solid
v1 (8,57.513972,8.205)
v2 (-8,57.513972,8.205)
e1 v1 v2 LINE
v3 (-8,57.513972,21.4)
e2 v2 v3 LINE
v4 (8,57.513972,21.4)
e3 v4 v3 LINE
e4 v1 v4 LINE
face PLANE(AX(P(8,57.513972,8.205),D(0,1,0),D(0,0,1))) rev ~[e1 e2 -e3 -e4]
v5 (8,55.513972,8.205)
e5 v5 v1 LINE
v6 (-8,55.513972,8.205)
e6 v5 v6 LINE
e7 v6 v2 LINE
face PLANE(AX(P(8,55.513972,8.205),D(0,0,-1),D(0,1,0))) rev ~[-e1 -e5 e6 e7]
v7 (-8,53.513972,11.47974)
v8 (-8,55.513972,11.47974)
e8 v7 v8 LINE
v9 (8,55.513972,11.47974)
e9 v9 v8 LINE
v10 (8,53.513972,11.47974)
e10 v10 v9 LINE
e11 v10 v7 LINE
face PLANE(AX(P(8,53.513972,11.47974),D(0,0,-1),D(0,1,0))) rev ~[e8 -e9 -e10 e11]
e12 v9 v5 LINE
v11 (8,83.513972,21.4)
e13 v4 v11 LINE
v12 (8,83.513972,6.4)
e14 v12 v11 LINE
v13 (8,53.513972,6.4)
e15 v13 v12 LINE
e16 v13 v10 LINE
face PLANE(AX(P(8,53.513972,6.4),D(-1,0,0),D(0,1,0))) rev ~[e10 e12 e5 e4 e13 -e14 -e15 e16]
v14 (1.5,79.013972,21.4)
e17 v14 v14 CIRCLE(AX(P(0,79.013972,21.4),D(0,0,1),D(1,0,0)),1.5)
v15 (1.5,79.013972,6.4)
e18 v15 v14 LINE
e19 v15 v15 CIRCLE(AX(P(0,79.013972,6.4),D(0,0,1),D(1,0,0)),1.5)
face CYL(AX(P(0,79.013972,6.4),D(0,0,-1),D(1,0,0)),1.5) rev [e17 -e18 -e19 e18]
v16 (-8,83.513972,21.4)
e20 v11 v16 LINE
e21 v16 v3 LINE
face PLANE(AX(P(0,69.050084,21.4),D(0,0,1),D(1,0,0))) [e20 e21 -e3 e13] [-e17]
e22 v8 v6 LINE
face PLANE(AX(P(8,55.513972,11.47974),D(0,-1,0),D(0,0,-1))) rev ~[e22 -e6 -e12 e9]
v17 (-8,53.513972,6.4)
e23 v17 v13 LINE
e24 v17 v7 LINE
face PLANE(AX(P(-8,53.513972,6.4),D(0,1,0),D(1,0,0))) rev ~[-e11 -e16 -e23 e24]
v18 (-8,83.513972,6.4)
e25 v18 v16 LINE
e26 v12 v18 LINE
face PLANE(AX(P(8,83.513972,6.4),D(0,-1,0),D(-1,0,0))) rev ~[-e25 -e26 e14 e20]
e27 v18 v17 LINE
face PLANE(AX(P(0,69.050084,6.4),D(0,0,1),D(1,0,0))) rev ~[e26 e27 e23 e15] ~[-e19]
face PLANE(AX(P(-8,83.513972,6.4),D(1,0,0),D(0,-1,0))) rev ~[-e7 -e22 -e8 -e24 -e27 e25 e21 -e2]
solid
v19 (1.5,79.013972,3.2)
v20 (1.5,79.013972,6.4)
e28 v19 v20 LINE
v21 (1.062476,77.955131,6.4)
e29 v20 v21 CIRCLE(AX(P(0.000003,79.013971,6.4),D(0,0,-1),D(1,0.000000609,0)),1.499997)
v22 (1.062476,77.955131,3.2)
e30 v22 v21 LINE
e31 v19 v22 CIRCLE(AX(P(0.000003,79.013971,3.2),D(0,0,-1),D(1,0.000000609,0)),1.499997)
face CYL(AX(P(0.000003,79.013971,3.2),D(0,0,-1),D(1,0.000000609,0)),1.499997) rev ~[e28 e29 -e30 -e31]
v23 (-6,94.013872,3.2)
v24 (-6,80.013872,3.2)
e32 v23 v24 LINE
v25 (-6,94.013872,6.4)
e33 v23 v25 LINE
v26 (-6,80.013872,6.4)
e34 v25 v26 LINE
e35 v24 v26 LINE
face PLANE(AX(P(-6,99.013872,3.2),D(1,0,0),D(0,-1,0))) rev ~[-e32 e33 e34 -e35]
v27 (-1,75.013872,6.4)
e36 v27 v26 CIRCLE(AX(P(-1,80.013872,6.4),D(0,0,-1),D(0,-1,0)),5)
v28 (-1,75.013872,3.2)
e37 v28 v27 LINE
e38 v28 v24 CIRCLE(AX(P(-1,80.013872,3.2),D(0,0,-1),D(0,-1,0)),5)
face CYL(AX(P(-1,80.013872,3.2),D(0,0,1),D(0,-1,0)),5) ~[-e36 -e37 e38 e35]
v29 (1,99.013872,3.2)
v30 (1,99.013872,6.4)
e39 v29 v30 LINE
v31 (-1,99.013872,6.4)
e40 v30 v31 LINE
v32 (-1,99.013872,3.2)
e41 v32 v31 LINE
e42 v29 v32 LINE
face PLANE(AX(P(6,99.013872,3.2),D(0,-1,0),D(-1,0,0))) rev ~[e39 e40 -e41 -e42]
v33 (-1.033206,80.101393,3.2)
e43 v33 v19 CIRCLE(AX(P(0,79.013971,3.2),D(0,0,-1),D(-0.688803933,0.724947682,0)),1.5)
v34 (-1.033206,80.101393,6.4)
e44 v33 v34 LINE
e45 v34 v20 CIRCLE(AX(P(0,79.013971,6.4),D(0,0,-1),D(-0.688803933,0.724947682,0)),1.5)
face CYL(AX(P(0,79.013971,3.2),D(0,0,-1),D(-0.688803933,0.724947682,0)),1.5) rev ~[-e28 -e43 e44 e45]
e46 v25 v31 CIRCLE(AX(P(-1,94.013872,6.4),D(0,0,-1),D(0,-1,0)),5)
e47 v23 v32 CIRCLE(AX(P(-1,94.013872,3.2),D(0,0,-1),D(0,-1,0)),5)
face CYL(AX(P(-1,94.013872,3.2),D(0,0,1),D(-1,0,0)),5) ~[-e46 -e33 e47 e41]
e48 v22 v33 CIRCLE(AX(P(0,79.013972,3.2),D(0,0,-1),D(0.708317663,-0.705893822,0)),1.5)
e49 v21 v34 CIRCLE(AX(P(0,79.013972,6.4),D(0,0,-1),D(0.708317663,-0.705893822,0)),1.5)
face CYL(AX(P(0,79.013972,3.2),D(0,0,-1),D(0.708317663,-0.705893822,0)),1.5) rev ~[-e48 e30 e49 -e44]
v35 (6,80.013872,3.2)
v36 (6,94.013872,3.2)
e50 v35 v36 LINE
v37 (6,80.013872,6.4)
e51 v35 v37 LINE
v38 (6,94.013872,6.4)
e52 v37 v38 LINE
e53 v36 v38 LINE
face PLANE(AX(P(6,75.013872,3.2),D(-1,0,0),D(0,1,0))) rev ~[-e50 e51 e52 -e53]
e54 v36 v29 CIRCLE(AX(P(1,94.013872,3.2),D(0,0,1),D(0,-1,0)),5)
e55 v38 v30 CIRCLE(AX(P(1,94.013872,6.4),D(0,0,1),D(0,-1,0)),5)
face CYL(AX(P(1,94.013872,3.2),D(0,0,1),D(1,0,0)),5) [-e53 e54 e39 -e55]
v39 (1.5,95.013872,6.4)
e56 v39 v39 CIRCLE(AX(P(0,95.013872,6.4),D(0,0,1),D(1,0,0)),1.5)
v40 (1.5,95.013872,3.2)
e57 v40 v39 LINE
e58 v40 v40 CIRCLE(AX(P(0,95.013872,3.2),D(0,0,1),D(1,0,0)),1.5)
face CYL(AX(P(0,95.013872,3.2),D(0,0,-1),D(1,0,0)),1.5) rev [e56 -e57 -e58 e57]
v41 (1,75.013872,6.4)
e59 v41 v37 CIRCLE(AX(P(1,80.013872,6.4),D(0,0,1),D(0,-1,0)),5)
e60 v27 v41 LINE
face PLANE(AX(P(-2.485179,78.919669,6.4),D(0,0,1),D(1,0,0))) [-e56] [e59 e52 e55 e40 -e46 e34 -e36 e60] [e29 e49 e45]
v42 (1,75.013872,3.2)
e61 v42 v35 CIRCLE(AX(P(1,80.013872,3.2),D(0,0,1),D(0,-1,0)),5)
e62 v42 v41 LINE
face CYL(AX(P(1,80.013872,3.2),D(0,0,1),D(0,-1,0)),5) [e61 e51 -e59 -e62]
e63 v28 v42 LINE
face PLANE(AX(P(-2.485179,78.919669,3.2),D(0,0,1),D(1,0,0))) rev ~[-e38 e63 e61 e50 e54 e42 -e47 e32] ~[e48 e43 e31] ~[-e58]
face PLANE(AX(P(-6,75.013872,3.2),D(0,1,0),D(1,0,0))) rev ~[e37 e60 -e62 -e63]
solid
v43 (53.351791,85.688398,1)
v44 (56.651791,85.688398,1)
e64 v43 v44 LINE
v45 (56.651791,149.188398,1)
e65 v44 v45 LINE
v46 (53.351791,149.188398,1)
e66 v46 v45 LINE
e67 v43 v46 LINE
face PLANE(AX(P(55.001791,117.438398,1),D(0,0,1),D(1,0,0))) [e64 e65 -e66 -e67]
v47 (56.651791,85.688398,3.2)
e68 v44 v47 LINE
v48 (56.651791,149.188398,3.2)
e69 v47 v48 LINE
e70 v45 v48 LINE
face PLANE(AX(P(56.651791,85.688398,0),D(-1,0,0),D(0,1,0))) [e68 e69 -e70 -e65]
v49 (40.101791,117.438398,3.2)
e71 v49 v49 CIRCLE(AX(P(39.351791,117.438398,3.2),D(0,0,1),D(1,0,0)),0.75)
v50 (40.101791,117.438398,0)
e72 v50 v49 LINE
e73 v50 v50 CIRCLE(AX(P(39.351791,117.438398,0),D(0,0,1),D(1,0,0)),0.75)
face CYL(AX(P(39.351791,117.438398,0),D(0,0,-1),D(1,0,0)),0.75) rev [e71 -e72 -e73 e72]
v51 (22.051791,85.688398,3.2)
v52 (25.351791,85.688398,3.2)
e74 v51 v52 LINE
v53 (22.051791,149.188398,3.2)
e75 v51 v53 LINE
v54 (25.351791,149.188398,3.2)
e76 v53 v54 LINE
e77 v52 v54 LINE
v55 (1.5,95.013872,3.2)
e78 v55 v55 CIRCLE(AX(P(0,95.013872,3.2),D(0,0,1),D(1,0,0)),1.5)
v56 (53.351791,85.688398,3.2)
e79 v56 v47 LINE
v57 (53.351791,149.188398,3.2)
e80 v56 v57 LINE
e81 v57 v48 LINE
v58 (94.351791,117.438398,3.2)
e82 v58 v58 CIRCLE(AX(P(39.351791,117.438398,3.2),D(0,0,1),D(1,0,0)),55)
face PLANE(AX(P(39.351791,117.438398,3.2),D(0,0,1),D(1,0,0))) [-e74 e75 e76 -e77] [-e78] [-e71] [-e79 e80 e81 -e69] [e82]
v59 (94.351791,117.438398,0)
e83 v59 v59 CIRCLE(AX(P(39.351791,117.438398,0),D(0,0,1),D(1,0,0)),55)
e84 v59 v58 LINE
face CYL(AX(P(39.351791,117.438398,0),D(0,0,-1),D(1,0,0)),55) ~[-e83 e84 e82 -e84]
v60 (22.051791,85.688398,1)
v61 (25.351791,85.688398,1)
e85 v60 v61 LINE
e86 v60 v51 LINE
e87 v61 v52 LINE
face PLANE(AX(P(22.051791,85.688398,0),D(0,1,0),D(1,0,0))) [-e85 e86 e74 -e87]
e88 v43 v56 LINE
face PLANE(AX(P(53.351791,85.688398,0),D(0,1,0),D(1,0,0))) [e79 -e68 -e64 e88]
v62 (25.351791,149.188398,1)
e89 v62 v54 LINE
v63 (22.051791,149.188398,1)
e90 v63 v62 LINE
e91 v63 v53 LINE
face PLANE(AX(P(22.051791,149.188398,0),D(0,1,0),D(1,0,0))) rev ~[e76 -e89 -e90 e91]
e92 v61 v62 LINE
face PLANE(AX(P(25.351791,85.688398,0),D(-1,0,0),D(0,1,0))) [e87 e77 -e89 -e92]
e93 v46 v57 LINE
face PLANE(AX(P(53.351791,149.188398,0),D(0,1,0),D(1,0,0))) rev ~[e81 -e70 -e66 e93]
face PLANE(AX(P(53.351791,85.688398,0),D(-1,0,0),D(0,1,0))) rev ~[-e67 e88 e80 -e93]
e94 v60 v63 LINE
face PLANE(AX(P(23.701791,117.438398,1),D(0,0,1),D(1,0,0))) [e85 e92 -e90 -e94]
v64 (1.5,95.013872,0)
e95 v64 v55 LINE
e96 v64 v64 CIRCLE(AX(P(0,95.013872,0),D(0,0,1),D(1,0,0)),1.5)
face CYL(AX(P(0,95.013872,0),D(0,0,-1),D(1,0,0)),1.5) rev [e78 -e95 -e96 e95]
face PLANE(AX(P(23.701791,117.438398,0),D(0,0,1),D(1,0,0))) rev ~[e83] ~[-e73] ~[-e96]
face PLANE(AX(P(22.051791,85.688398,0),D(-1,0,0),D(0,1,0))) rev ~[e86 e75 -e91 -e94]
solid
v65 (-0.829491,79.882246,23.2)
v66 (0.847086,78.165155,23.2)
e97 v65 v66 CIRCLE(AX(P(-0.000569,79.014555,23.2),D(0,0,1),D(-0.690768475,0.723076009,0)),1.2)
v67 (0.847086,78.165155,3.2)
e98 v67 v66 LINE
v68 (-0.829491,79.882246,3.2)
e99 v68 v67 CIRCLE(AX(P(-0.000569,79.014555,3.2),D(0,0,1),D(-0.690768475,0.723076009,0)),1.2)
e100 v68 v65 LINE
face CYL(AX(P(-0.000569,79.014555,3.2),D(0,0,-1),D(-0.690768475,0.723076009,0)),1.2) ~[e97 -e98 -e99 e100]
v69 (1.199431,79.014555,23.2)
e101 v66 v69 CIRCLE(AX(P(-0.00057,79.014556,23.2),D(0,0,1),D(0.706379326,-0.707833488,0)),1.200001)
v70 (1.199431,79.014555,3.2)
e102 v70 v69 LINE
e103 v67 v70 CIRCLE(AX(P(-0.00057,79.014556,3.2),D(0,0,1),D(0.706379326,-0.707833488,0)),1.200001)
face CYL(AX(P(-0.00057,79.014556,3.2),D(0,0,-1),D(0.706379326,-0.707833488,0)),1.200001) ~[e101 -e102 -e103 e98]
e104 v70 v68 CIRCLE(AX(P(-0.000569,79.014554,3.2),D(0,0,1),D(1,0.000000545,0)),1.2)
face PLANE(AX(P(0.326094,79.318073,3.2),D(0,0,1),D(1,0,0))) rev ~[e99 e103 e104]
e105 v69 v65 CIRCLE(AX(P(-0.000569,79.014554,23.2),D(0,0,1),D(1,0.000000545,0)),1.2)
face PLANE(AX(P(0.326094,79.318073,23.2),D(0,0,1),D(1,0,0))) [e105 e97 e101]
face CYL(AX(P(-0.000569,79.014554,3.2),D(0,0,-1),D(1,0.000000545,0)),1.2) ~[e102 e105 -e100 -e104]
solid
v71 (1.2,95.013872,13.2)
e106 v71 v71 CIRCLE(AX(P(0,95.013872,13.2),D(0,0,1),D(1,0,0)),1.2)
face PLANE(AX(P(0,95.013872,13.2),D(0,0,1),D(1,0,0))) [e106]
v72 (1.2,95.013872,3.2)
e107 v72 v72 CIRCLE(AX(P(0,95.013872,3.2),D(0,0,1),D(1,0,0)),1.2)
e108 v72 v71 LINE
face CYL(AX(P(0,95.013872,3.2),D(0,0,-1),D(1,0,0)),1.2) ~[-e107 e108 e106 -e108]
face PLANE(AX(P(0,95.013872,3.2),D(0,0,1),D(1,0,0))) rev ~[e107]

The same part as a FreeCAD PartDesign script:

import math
import FreeCAD as App
import Part
import Sketcher
from FreeCAD import Vector


def edges_at(feature, points):
    """Names of the edges that pass closest to the given points."""
    edges = feature.Shape.Edges
    near = lambda p: min(range(len(edges)), key=lambda i: edges[i].distToShape(Part.Vertex(*p))[0])
    return sorted({f"Edge{near(p) + 1}" for p in points})


def add_polygon(sketch, points):
    """Adds a closed chain of lines whose ends are joined by coincident constraints."""
    first, n = sketch.GeometryCount, len(points)
    for a, b in zip(points, points[1:] + points[:1]):
        sketch.addGeometry(Part.LineSegment(App.Vector(*a, 0), App.Vector(*b, 0)), False)
    for i in range(n):
        sketch.addConstraint(Sketcher.Constraint("Coincident", first + i, 2, first + (i + 1) % n, 1))

doc = App.newDocument("Part")
body = doc.addObject("PartDesign::Body", "Body")

# Sketch on XY plane
sketch1 = body.newObject("Sketcher::SketchObject", "Sketch")
sketch1.AttachmentSupport = (doc.getObject("XY_Plane"), [""])
sketch1.MapMode = "FlatFace"
sketch1.addGeometry(Part.Circle(Vector(39.4, 117.4, 0), Vector(0, 0, 1), 55), False)  # 0
sketch1.addGeometry(Part.Circle(Vector(0, 95, 0), Vector(0, 0, 1), 1.5), False)  # 1
add_polygon(sketch1, [(25.4, 85.7), (22.1, 85.7), (22.1, 149.2), (25.4, 149.2)])  # lines 2-5
sketch1.addGeometry(Part.Circle(Vector(39.4, 117.4, 0), Vector(0, 0, 1), 0.8), False)  # 6
add_polygon(sketch1, [(56.7, 85.7), (53.4, 85.7), (53.4, 149.2), (56.7, 149.2)])  # lines 7-10
sketch1.addConstraint(Sketcher.Constraint("Horizontal", 2))
sketch1.addConstraint(Sketcher.Constraint("Vertical", 3))
sketch1.addConstraint(Sketcher.Constraint("Horizontal", 4))
sketch1.addConstraint(Sketcher.Constraint("Vertical", 5))
sketch1.addConstraint(Sketcher.Constraint("Horizontal", 7))
sketch1.addConstraint(Sketcher.Constraint("Vertical", 8))
sketch1.addConstraint(Sketcher.Constraint("Horizontal", 9))
sketch1.addConstraint(Sketcher.Constraint("Vertical", 10))
sketch1.addConstraint(Sketcher.Constraint("Coincident", 6, 3, 0, 3))
sketch1.addConstraint(Sketcher.Constraint("PointOnObject", 1, 3, -2))
sketch1.addConstraint(Sketcher.Constraint("Horizontal", 5, 2, 7, 2))
sketch1.addConstraint(Sketcher.Constraint("Horizontal", 4, 2, 8, 2))
sketch1.addConstraint(Sketcher.Constraint("Equal", 4, 7))
sketch1.addConstraint(Sketcher.Constraint("Diameter", 0, 110.0))
sketch1.addConstraint(Sketcher.Constraint("Diameter", 1, 3.0))
sketch1.addConstraint(Sketcher.Constraint("Diameter", 6, 1.5))
sketch1.addConstraint(Sketcher.Constraint("DistanceX", 2, 2, 2, 1, 3.3))
sketch1.addConstraint(Sketcher.Constraint("DistanceY", 3, 1, 3, 2, 63.5))
sketch1.addConstraint(Sketcher.Constraint("DistanceX", 4, 2, 0, 3, 14.0))
sketch1.addConstraint(Sketcher.Constraint("DistanceX", 5, 2, 7, 2, 28.0))
sketch1.addConstraint(Sketcher.Constraint("DistanceY", 2, 2, 0, 3, 31.75))
sketch1.addConstraint(Sketcher.Constraint("DistanceY", -1, 1, 0, 3, 117.438398))
sketch1.addConstraint(Sketcher.Constraint("DistanceX", -1, 1, 0, 3, 39.351791))
sketch1.addConstraint(Sketcher.Constraint("DistanceY", -1, 1, 1, 3, 95.013872))
pad1 = body.newObject("PartDesign::Pad", "Pad")
pad1.Profile = sketch1
pad1.Length = 3.2

# Sketch on XY plane
sketch2 = body.newObject("Sketcher::SketchObject", "Sketch001")
sketch2.AttachmentSupport = (doc.getObject("XY_Plane"), [""])
sketch2.MapMode = "FlatFace"
add_polygon(sketch2, [(22.1, 149.2), (22.1, 85.7), (25.4, 85.7), (25.4, 149.2)])  # lines 0-3
add_polygon(sketch2, [(53.4, 149.2), (53.4, 85.7), (56.7, 85.7), (56.7, 149.2)])  # lines 4-7
sketch2.addConstraint(Sketcher.Constraint("Vertical", 0))
sketch2.addConstraint(Sketcher.Constraint("Horizontal", 1))
sketch2.addConstraint(Sketcher.Constraint("Vertical", 2))
sketch2.addConstraint(Sketcher.Constraint("Horizontal", 3))
sketch2.addConstraint(Sketcher.Constraint("Vertical", 4))
sketch2.addConstraint(Sketcher.Constraint("Horizontal", 5))
sketch2.addConstraint(Sketcher.Constraint("Vertical", 6))
sketch2.addConstraint(Sketcher.Constraint("Horizontal", 7))
sketch2.addConstraint(Sketcher.Constraint("Horizontal", 1, 2, 4, 2))
sketch2.addConstraint(Sketcher.Constraint("Horizontal", 3, 2, 6, 2))
sketch2.addConstraint(Sketcher.Constraint("Equal", 3, 5))
sketch2.addConstraint(Sketcher.Constraint("DistanceX", 1, 1, 1, 2, 3.3))
sketch2.addConstraint(Sketcher.Constraint("DistanceY", 0, 2, 0, 1, 63.5))
sketch2.addConstraint(Sketcher.Constraint("DistanceX", 1, 2, 4, 2, 28.0))
sketch2.addConstraint(Sketcher.Constraint("DistanceY", -1, 1, 0, 2, 85.688398))
sketch2.addConstraint(Sketcher.Constraint("DistanceX", -1, 1, 0, 2, 22.051791))
pad2 = body.newObject("PartDesign::Pad", "Pad001")
pad2.Profile = sketch2
pad2.Length = 1
body2 = doc.addObject("PartDesign::Body", "Body001")

# Sketch on XY plane
sketch3 = body2.newObject("Sketcher::SketchObject", "Sketch002")
sketch3.AttachmentSupport = (doc.getObject("XY_Plane001"), [""])
sketch3.MapMode = "FlatFace"
sketch3.AttachmentOffset = App.Placement(Vector(0, 0, 3.2), App.Rotation())
sketch3.addGeometry(Part.Circle(Vector(0, 95, 0), Vector(0, 0, 1), 1.2), False)
sketch3.addConstraint(Sketcher.Constraint("PointOnObject", 0, 3, -2))
sketch3.addConstraint(Sketcher.Constraint("Diameter", 0, 2.4))
sketch3.addConstraint(Sketcher.Constraint("DistanceY", -1, 1, 0, 3, 95.013872))
pad3 = body2.newObject("PartDesign::Pad", "Pad002")
pad3.Profile = sketch3
pad3.Length = 10
body3 = doc.addObject("PartDesign::Body", "Body002")

# Sketch on XY plane
sketch4 = body3.newObject("Sketcher::SketchObject", "Sketch003")
sketch4.AttachmentSupport = (doc.getObject("XY_Plane002"), [""])
sketch4.MapMode = "FlatFace"
sketch4.AttachmentOffset = App.Placement(Vector(0, 0, 3.2), App.Rotation())
add_polygon(sketch4, [(-6, 75), (6, 75), (6, 99), (-6, 99)])  # lines 0-3
sketch4.addGeometry(Part.ArcOfCircle(Part.Circle(Vector(0, 79, 0), Vector(0, 0, 1), 1.5), math.radians(134), math.radians(315)), False)  # 4
sketch4.addGeometry(Part.ArcOfCircle(Part.Circle(Vector(0, 79, 0), Vector(0, 0, 1), 1.5), math.radians(0), math.radians(134)), False)  # 5
sketch4.addGeometry(Part.ArcOfCircle(Part.Circle(Vector(0, 79, 0), Vector(0, 0, 1), 1.5), math.radians(-45), math.radians(0)), False)  # 6
sketch4.addGeometry(Part.Circle(Vector(0, 95, 0), Vector(0, 0, 1), 1.5), False)  # 7
sketch4.addConstraint(Sketcher.Constraint("Tangent", 4, 1, 5, 2))
sketch4.addConstraint(Sketcher.Constraint("Tangent", 5, 1, 6, 2))
sketch4.addConstraint(Sketcher.Constraint("Tangent", 6, 1, 4, 2))
sketch4.addConstraint(Sketcher.Constraint("Horizontal", 0))
sketch4.addConstraint(Sketcher.Constraint("Vertical", 1))
sketch4.addConstraint(Sketcher.Constraint("Horizontal", 2))
sketch4.addConstraint(Sketcher.Constraint("Vertical", 3))
sketch4.addConstraint(Sketcher.Constraint("Equal", 5, 7))
sketch4.addConstraint(Sketcher.Constraint("PointOnObject", 4, 3, -2))
sketch4.addConstraint(Sketcher.Constraint("PointOnObject", 7, 3, -2))
sketch4.addConstraint(Sketcher.Constraint("Horizontal", 6, 3, 5, 1))
sketch4.addConstraint(Sketcher.Constraint("Diameter", 7, 3.0))
sketch4.addConstraint(Sketcher.Constraint("DistanceX", 0, 1, 0, 2, 12.0))
sketch4.addConstraint(Sketcher.Constraint("DistanceY", 1, 1, 1, 2, 24.0))
sketch4.addConstraint(Sketcher.Constraint("DistanceX", -1, 1, 0, 2, 6.0))
sketch4.addConstraint(Sketcher.Constraint("DistanceY", 0, 2, 7, 3, 20.0))
sketch4.addConstraint(Sketcher.Constraint("DistanceY", 4, 3, 7, 3, 15.9999))
sketch4.addConstraint(Sketcher.Constraint("DistanceY", -1, 1, 4, 3, 79.013972))
sketch4.addConstraint(Sketcher.Constraint("DistanceY", -1, 1, 6, 1, 77.955131))
sketch4.addConstraint(Sketcher.Constraint("DistanceY", 4, 3, 4, 1, 1.087421))
pad4 = body3.newObject("PartDesign::Pad", "Pad003")
pad4.Profile = sketch4
pad4.Length = 3.2
doc.recompute()

fillet = body3.newObject("PartDesign::Fillet", "Fillet")
fillet.Base = (pad4, edges_at(pad4, [
    (-6, 99.014, 4.8),
    (6, 99.014, 4.8),
    (6, 75.014, 4.8),
    (-6, 75.014, 4.8),
]))
fillet.Radius = 5
body4 = doc.addObject("PartDesign::Body", "Body003")

# Sketch on XY plane
sketch5 = body4.newObject("Sketcher::SketchObject", "Sketch004")
sketch5.AttachmentSupport = (doc.getObject("XY_Plane003"), [""])
sketch5.MapMode = "FlatFace"
sketch5.AttachmentOffset = App.Placement(Vector(0, 0, 3.2), App.Rotation())
sketch5.addGeometry(Part.ArcOfCircle(Part.Circle(Vector(0, 79, 0), Vector(0, 0, 1), 1.2), math.radians(-45), math.radians(0)), False)
sketch5.addGeometry(Part.ArcOfCircle(Part.Circle(Vector(0, 79, 0), Vector(0, 0, 1), 1.2), math.radians(0), math.radians(134)), False)
sketch5.addGeometry(Part.ArcOfCircle(Part.Circle(Vector(0, 79, 0), Vector(0, 0, 1), 1.2), math.radians(134), math.radians(315)), False)
sketch5.addConstraint(Sketcher.Constraint("Tangent", 0, 2, 1, 1))
sketch5.addConstraint(Sketcher.Constraint("Tangent", 1, 2, 2, 1))
sketch5.addConstraint(Sketcher.Constraint("Tangent", 2, 2, 0, 1))
sketch5.addConstraint(Sketcher.Constraint("Horizontal", 2, 3, 0, 2))
sketch5.addConstraint(Sketcher.Constraint("Radius", 0, 1.200001))
sketch5.addConstraint(Sketcher.Constraint("DistanceY", 2, 2, 0, 2, 0.8494))
sketch5.addConstraint(Sketcher.Constraint("DistanceX", 0, 3, -1, 1, 0.00057))
sketch5.addConstraint(Sketcher.Constraint("DistanceX", 1, 2, -1, 1, 0.829491))
sketch5.addConstraint(Sketcher.Constraint("DistanceY", -1, 1, 0, 3, 79.014556))
pad5 = body4.newObject("PartDesign::Pad", "Pad004")
pad5.Profile = sketch5
pad5.Length = 20
body5 = doc.addObject("PartDesign::Body", "Body004")

# Sketch on XY plane
sketch6 = body5.newObject("Sketcher::SketchObject", "Sketch005")
sketch6.AttachmentSupport = (doc.getObject("XY_Plane004"), [""])
sketch6.MapMode = "FlatFace"
sketch6.AttachmentOffset = App.Placement(Vector(0, 0, 6.4), App.Rotation())
add_polygon(sketch6, [(-8, 83.5), (-8, 53.5), (8, 53.5), (8, 83.5)])  # lines 0-3
sketch6.addGeometry(Part.Circle(Vector(0, 79, 0), Vector(0, 0, 1), 1.5), False)  # 4
sketch6.addConstraint(Sketcher.Constraint("Vertical", 0))
sketch6.addConstraint(Sketcher.Constraint("Horizontal", 1))
sketch6.addConstraint(Sketcher.Constraint("Vertical", 2))
sketch6.addConstraint(Sketcher.Constraint("Horizontal", 3))
sketch6.addConstraint(Sketcher.Constraint("PointOnObject", 4, 3, -2))
sketch6.addConstraint(Sketcher.Constraint("Diameter", 4, 3.0))
sketch6.addConstraint(Sketcher.Constraint("DistanceX", 1, 1, 1, 2, 16.0))
sketch6.addConstraint(Sketcher.Constraint("DistanceY", 0, 2, 0, 1, 30.0))
sketch6.addConstraint(Sketcher.Constraint("DistanceX", 0, 2, -1, 1, 8.0))
sketch6.addConstraint(Sketcher.Constraint("DistanceY", 0, 2, 4, 3, 25.5))
sketch6.addConstraint(Sketcher.Constraint("DistanceY", -1, 1, 4, 3, 79.013972))
pad6 = body5.newObject("PartDesign::Pad", "Pad005")
pad6.Profile = sketch6
pad6.Length = 15

# Sketch on YZ plane
sketch7 = body5.newObject("Sketcher::SketchObject", "Sketch006")
sketch7.AttachmentSupport = (doc.getObject("YZ_Plane004"), [""])
sketch7.MapMode = "FlatFace"
sketch7.AttachmentOffset = App.Placement(Vector(0, 0, 8), App.Rotation())
add_polygon(sketch7, [(57.5, 21.4), (53.5, 21.4), (53.5, 11.5), (55.5, 11.5), (55.5, 8.2), (57.5, 8.2)])  # lines 0-5
sketch7.addConstraint(Sketcher.Constraint("Horizontal", 0))
sketch7.addConstraint(Sketcher.Constraint("Vertical", 1))
sketch7.addConstraint(Sketcher.Constraint("Horizontal", 2))
sketch7.addConstraint(Sketcher.Constraint("Vertical", 3))
sketch7.addConstraint(Sketcher.Constraint("Horizontal", 4))
sketch7.addConstraint(Sketcher.Constraint("Vertical", 5))
sketch7.addConstraint(Sketcher.Constraint("Equal", 2, 4))
sketch7.addConstraint(Sketcher.Constraint("DistanceX", 0, 2, 0, 1, 4.0))
sketch7.addConstraint(Sketcher.Constraint("DistanceY", -1, 1, 0, 2, 21.4))
sketch7.addConstraint(Sketcher.Constraint("DistanceY", 5, 1, 5, 2, 13.195))
sketch7.addConstraint(Sketcher.Constraint("DistanceY", 1, 2, 1, 1, 9.92026))
sketch7.addConstraint(Sketcher.Constraint("DistanceX", -1, 1, 0, 2, 53.513972))
pocket1 = body5.newObject("PartDesign::Pocket", "Pocket")
pocket1.Profile = sketch7
pocket1.Length = 25

doc.recompute()
